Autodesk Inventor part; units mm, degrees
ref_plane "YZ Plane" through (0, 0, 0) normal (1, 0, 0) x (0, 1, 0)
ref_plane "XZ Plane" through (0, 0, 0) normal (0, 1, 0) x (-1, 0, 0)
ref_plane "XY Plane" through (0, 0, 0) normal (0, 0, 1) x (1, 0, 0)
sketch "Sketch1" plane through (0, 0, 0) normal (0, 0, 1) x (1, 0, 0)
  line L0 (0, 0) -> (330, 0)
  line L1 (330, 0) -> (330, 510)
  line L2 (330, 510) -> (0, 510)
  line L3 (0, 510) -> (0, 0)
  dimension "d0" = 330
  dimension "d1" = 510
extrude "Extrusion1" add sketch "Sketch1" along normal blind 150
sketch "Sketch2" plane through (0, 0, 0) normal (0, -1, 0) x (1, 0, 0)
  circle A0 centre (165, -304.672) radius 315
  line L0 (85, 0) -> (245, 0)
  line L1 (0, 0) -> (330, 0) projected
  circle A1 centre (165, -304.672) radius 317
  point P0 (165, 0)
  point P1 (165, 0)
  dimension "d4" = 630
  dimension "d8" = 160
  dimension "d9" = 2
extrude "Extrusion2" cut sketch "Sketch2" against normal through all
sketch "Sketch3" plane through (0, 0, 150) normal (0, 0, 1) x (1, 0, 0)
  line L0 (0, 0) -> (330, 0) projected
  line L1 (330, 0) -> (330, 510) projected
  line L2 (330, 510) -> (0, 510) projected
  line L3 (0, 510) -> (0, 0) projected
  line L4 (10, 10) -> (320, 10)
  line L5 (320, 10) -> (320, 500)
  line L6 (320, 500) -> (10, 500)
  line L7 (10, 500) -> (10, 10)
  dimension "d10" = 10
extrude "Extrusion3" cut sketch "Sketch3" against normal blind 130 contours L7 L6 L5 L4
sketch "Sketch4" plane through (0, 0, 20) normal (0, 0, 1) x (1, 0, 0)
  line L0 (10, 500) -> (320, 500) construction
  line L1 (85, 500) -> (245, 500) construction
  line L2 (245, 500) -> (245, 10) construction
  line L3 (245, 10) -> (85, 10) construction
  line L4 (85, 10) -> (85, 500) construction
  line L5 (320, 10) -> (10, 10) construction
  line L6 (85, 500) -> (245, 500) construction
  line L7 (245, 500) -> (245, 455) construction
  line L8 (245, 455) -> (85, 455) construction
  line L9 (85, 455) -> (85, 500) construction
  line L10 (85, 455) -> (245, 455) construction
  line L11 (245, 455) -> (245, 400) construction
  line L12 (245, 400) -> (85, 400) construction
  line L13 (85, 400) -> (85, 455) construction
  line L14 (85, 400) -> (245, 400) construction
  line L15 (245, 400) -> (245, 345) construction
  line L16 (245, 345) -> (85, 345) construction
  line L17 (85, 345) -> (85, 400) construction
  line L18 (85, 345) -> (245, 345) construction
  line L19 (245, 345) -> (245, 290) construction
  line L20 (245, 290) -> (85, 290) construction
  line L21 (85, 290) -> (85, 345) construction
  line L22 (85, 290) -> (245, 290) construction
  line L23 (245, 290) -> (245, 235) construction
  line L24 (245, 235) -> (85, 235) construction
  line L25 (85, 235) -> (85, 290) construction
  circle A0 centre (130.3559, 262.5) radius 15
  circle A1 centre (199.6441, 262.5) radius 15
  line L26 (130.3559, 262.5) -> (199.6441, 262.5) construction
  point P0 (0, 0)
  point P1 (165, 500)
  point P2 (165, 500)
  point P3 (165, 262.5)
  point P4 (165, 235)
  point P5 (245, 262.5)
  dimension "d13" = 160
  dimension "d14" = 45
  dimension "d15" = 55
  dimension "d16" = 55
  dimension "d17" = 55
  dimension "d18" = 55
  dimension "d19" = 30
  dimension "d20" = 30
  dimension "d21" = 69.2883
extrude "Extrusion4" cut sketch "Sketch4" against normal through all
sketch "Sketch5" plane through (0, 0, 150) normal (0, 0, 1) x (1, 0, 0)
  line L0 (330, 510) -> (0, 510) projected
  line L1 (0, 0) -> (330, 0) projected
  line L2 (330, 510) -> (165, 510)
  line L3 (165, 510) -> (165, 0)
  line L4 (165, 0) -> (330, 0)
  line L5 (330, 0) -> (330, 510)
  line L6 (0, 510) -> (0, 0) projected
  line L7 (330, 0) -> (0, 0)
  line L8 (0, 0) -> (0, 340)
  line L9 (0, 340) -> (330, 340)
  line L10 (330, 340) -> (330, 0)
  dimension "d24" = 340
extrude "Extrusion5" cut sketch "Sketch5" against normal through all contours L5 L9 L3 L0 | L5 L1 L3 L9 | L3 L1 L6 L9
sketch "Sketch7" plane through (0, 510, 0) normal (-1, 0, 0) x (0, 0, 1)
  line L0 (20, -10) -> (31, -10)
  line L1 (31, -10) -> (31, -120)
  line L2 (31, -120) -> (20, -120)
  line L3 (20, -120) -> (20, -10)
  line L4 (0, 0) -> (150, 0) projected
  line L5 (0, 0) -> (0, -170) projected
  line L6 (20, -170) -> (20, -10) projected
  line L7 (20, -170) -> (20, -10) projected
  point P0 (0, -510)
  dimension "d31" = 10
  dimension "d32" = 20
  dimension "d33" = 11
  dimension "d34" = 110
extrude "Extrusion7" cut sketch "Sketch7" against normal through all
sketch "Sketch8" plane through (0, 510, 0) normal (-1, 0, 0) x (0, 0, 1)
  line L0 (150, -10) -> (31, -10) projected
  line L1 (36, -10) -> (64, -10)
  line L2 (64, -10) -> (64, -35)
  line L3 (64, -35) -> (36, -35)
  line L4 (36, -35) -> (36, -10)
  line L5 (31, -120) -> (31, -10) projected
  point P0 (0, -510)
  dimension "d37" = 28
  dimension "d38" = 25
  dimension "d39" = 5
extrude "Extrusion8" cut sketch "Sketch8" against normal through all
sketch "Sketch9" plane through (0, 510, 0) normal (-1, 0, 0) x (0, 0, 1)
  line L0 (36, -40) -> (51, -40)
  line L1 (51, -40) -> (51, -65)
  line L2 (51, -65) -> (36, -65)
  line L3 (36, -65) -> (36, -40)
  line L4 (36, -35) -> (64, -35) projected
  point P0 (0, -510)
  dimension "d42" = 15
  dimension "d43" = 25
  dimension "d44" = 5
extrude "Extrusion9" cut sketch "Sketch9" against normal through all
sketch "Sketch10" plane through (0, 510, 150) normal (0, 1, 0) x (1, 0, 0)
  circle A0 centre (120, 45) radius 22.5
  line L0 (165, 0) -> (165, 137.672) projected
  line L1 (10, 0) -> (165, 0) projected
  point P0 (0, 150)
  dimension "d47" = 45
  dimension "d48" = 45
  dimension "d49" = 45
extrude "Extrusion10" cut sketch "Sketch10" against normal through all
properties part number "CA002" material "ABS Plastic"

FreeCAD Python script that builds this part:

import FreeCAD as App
import Part
import Sketcher


def add_polygon(sketch, points):
    """Adds a closed chain of lines whose ends are joined by coincident constraints."""
    first, n = sketch.GeometryCount, len(points)
    for a, b in zip(points, points[1:] + points[:1]):
        sketch.addGeometry(Part.LineSegment(App.Vector(*a, 0), App.Vector(*b, 0)), False)
    for i in range(n):
        sketch.addConstraint(Sketcher.Constraint("Coincident", first + i, 2, first + (i + 1) % n, 1))

doc = App.newDocument("Part")
body = doc.addObject("PartDesign::Body", "Body")

# Sketch on XY plane
sketch1 = body.newObject("Sketcher::SketchObject", "Sketch")
sketch1.AttachmentSupport = (doc.getObject("XY_Plane"), [""])
sketch1.MapMode = "FlatFace"
add_polygon(sketch1, [(0, 510), (0, 0), (330, 0), (330, 510)])  # lines 0-3
sketch1.addConstraint(Sketcher.Constraint("Vertical", 0))
sketch1.addConstraint(Sketcher.Constraint("Horizontal", 1))
sketch1.addConstraint(Sketcher.Constraint("Vertical", 2))
sketch1.addConstraint(Sketcher.Constraint("Horizontal", 3))
sketch1.addConstraint(Sketcher.Constraint("Coincident", 0, 2, -1, 1))
sketch1.addConstraint(Sketcher.Constraint("DistanceX", 1, 1, 1, 2, 330.0))
sketch1.addConstraint(Sketcher.Constraint("DistanceY", 0, 2, 0, 1, 510.0))
pad1 = body.newObject("PartDesign::Pad", "Pad")
pad1.Profile = sketch1
pad1.Length = 150

# Sketch on XZ plane
sketch2 = body.newObject("Sketcher::SketchObject", "Sketch001")
sketch2.AttachmentSupport = (doc.getObject("XZ_Plane"), [""])
sketch2.MapMode = "FlatFace"
sketch2.addGeometry(Part.Circle(App.Vector(165, -305, 0), App.Vector(0, 0, 1), 317), False)
sketch2.addConstraint(Sketcher.Constraint("Diameter", 0, 634.0))
sketch2.addConstraint(Sketcher.Constraint("DistanceX", -1, 1, 0, 3, 165.0))
sketch2.addConstraint(Sketcher.Constraint("DistanceY", 0, 3, -1, 1, 304.672))
pocket1 = body.newObject("PartDesign::Pocket", "Pocket")
pocket1.Profile = sketch2
pocket1.Type = "ThroughAll"

# Sketch on XY plane
sketch3 = body.newObject("Sketcher::SketchObject", "Sketch002")
sketch3.AttachmentSupport = (doc.getObject("XY_Plane"), [""])
sketch3.MapMode = "FlatFace"
sketch3.AttachmentOffset = App.Placement(App.Vector(0, 0, 150), App.Rotation())
add_polygon(sketch3, [(10, 500), (10, 10), (320, 10), (320, 500)])  # lines 0-3
sketch3.addConstraint(Sketcher.Constraint("Vertical", 0))
sketch3.addConstraint(Sketcher.Constraint("Horizontal", 1))
sketch3.addConstraint(Sketcher.Constraint("Vertical", 2))
sketch3.addConstraint(Sketcher.Constraint("Horizontal", 3))
sketch3.addConstraint(Sketcher.Constraint("DistanceX", -1, 1, 0, 2, 10.0))
sketch3.addConstraint(Sketcher.Constraint("DistanceY", -1, 1, 0, 2, 10.0))
sketch3.addConstraint(Sketcher.Constraint("DistanceX", 1, 1, 1, 2, 310.0))
sketch3.addConstraint(Sketcher.Constraint("DistanceY", 0, 2, 0, 1, 490.0))
pocket2 = body.newObject("PartDesign::Pocket", "Pocket001")
pocket2.Profile = sketch3
pocket2.Length = 130

# Sketch on XY plane
sketch4 = body.newObject("Sketcher::SketchObject", "Sketch003")
sketch4.AttachmentSupport = (doc.getObject("XY_Plane"), [""])
sketch4.MapMode = "FlatFace"
sketch4.AttachmentOffset = App.Placement(App.Vector(0, 0, 20), App.Rotation())
sketch4.addGeometry(Part.Circle(App.Vector(130, 262, 0), App.Vector(0, 0, 1), 15), False)
sketch4.addGeometry(Part.Circle(App.Vector(200, 262, 0), App.Vector(0, 0, 1), 15), False)
sketch4.addConstraint(Sketcher.Constraint("Equal", 0, 1))
sketch4.addConstraint(Sketcher.Constraint("Horizontal", 0, 3, 1, 3))
sketch4.addConstraint(Sketcher.Constraint("Diameter", 0, 30.0))
sketch4.addConstraint(Sketcher.Constraint("DistanceY", -1, 1, 0, 3, 262.5))
sketch4.addConstraint(Sketcher.Constraint("DistanceX", 0, 3, 1, 3, 69.2882))
sketch4.addConstraint(Sketcher.Constraint("DistanceX", -1, 1, 0, 3, 130.356))
pocket3 = body.newObject("PartDesign::Pocket", "Pocket002")
pocket3.Profile = sketch4
pocket3.Type = "ThroughAll"

# Sketch on XY plane
sketch5 = body.newObject("Sketcher::SketchObject", "Sketch004")
sketch5.AttachmentSupport = (doc.getObject("XY_Plane"), [""])
sketch5.MapMode = "FlatFace"
sketch5.AttachmentOffset = App.Placement(App.Vector(0, 0, 150), App.Rotation())
add_polygon(sketch5, [(330, 510), (165, 510), (165, 340), (0, 340), (0, 0), (330, 0)])  # lines 0-5
sketch5.addConstraint(Sketcher.Constraint("Horizontal", 0))
sketch5.addConstraint(Sketcher.Constraint("Vertical", 1))
sketch5.addConstraint(Sketcher.Constraint("Horizontal", 2))
sketch5.addConstraint(Sketcher.Constraint("Vertical", 3))
sketch5.addConstraint(Sketcher.Constraint("Horizontal", 4))
sketch5.addConstraint(Sketcher.Constraint("Vertical", 5))
sketch5.addConstraint(Sketcher.Constraint("Coincident", 3, 2, -1, 1))
sketch5.addConstraint(Sketcher.Constraint("Equal", 0, 2))
sketch5.addConstraint(Sketcher.Constraint("DistanceY", 3, 2, 3, 1, 340.0))
sketch5.addConstraint(Sketcher.Constraint("DistanceX", 0, 2, 0, 1, 165.0))
sketch5.addConstraint(Sketcher.Constraint("DistanceY", 1, 2, 1, 1, 170.0))
pocket4 = body.newObject("PartDesign::Pocket", "Pocket003")
pocket4.Profile = sketch5
pocket4.Type = "ThroughAll"

# Sketch on YZ plane
sketch6 = body.newObject("Sketcher::SketchObject", "Sketch005")
sketch6.AttachmentSupport = (doc.getObject("YZ_Plane"), [""])
sketch6.MapMode = "FlatFace"
add_polygon(sketch6, [(500, 31), (500, 20), (390, 20), (390, 31)])  # lines 0-3
sketch6.addConstraint(Sketcher.Constraint("Vertical", 0))
sketch6.addConstraint(Sketcher.Constraint("Horizontal", 1))
sketch6.addConstraint(Sketcher.Constraint("Vertical", 2))
sketch6.addConstraint(Sketcher.Constraint("Horizontal", 3))
sketch6.addConstraint(Sketcher.Constraint("DistanceX", 1, 2, 1, 1, 110.0))
sketch6.addConstraint(Sketcher.Constraint("DistanceY", 0, 2, 0, 1, 11.0))
sketch6.addConstraint(Sketcher.Constraint("DistanceY", -1, 1, 0, 2, 20.0))
sketch6.addConstraint(Sketcher.Constraint("DistanceX", -1, 1, 0, 2, 500.0))
pocket5 = body.newObject("PartDesign::Pocket", "Pocket004")
pocket5.Profile = sketch6
pocket5.Type = "ThroughAll"
pocket5.Reversed = True

# Sketch on YZ plane
sketch7 = body.newObject("Sketcher::SketchObject", "Sketch006")
sketch7.AttachmentSupport = (doc.getObject("YZ_Plane"), [""])
sketch7.MapMode = "FlatFace"
add_polygon(sketch7, [(475, 64), (500, 64), (500, 36), (475, 36)])  # lines 0-3
sketch7.addConstraint(Sketcher.Constraint("Horizontal", 0))
sketch7.addConstraint(Sketcher.Constraint("Vertical", 1))
sketch7.addConstraint(Sketcher.Constraint("Horizontal", 2))
sketch7.addConstraint(Sketcher.Constraint("Vertical", 3))
sketch7.addConstraint(Sketcher.Constraint("DistanceX", 0, 1, 0, 2, 25.0))
sketch7.addConstraint(Sketcher.Constraint("DistanceY", 1, 2, 1, 1, 28.0))
sketch7.addConstraint(Sketcher.Constraint("DistanceX", -1, 1, 0, 2, 500.0))
sketch7.addConstraint(Sketcher.Constraint("DistanceY", -1, 1, 0, 2, 64.0))
pocket6 = body.newObject("PartDesign::Pocket", "Pocket005")
pocket6.Profile = sketch7
pocket6.Type = "ThroughAll"
pocket6.Reversed = True

# Sketch on YZ plane
sketch8 = body.newObject("Sketcher::SketchObject", "Sketch007")
sketch8.AttachmentSupport = (doc.getObject("YZ_Plane"), [""])
sketch8.MapMode = "FlatFace"
add_polygon(sketch8, [(470, 51), (470, 36), (445, 36), (445, 51)])  # lines 0-3
sketch8.addConstraint(Sketcher.Constraint("Vertical", 0))
sketch8.addConstraint(Sketcher.Constraint("Horizontal", 1))
sketch8.addConstraint(Sketcher.Constraint("Vertical", 2))
sketch8.addConstraint(Sketcher.Constraint("Horizontal", 3))
sketch8.addConstraint(Sketcher.Constraint("DistanceX", 1, 2, 1, 1, 25.0))
sketch8.addConstraint(Sketcher.Constraint("DistanceY", 0, 2, 0, 1, 15.0))
sketch8.addConstraint(Sketcher.Constraint("DistanceX", -1, 1, 0, 2, 470.0))
sketch8.addConstraint(Sketcher.Constraint("DistanceY", -1, 1, 0, 2, 36.0))
pocket7 = body.newObject("PartDesign::Pocket", "Pocket006")
pocket7.Profile = sketch8
pocket7.Type = "ThroughAll"
pocket7.Reversed = True

# Sketch on XZ plane
sketch9 = body.newObject("Sketcher::SketchObject", "Sketch008")
sketch9.AttachmentSupport = (doc.getObject("XZ_Plane"), [""])
sketch9.MapMode = "FlatFace"
sketch9.AttachmentOffset = App.Placement(App.Vector(0, 0, -510), App.Rotation())
sketch9.addGeometry(Part.Circle(App.Vector(120, 105, 0), App.Vector(0, 0, 1), 22), False)
sketch9.addConstraint(Sketcher.Constraint("Diameter", 0, 45.0))
sketch9.addConstraint(Sketcher.Constraint("DistanceX", -1, 1, 0, 3, 120.0))
sketch9.addConstraint(Sketcher.Constraint("DistanceY", -1, 1, 0, 3, 105.0))
pocket8 = body.newObject("PartDesign::Pocket", "Pocket007")
pocket8.Profile = sketch9
pocket8.Type = "ThroughAll"
pocket8.Reversed = True

doc.recompute()
